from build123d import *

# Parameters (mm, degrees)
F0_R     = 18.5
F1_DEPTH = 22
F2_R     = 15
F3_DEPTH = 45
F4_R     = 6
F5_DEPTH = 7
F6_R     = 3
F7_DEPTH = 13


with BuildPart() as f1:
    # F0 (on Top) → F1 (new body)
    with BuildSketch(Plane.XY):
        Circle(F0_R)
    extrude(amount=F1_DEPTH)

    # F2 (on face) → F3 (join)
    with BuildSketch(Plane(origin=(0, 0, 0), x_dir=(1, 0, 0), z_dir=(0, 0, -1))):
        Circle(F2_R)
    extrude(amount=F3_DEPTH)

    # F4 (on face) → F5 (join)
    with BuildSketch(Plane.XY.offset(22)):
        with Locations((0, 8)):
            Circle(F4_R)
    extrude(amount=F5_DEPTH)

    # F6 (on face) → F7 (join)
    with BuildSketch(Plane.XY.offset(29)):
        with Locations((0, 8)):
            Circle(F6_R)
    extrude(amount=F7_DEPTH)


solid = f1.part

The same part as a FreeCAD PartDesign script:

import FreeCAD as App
import Part
import Sketcher

V = App.Vector
Q = App.Units.Quantity

doc = App.newDocument("Part")
body = doc.addObject("PartDesign::Body", "Body")

sketch1 = doc.addObject("Sketcher::SketchObject", "Sketch")
body.addObject(sketch1)
sketch1.AttachmentSupport = (doc.XY_Plane, [""])
sketch1.MapMode = "FlatFace"
sketch1.addGeometry(Part.Circle(V(0, 0, 0), V(0, 0, 1), 18.5), False)
sketch1.addConstraint([
    Sketcher.Constraint("Coincident", 0, 3, -1, 1),
    Sketcher.Constraint("Diameter", 0, Q("37 mm")),
])
pad1 = doc.addObject("PartDesign::Pad", "Pad")
body.addObject(pad1)
pad1.Profile = sketch1
pad1.Length = 22

sketch2 = doc.addObject("Sketcher::SketchObject", "Sketch001")
body.addObject(sketch2)
sketch2.AttachmentSupport = (doc.XY_Plane, [""])
sketch2.MapMode = "FlatFace"
sketch2.addGeometry(Part.Circle(V(0, 0, 0), V(0, 0, 1), 15), False)
sketch2.addConstraint([
    Sketcher.Constraint("Coincident", 0, 3, -1, 1),
    Sketcher.Constraint("Diameter", 0, Q("30 mm")),
])
pad2 = doc.addObject("PartDesign::Pad", "Pad001")
body.addObject(pad2)
pad2.Profile = sketch2
pad2.Length = 45
pad2.Reversed = True

sketch3 = doc.addObject("Sketcher::SketchObject", "Sketch002")
body.addObject(sketch3)
sketch3.AttachmentSupport = (doc.XY_Plane, [""])
sketch3.MapMode = "FlatFace"
sketch3.AttachmentOffset = App.Placement(V(0, 0, 22), App.Rotation())
sketch3.addGeometry(Part.Circle(V(0, 8, 0), V(0, 0, 1), 6), False)
sketch3.addConstraint([
    Sketcher.Constraint("PointOnObject", 0, 3, -2),
    Sketcher.Constraint("Diameter", 0, Q("12 mm")),
    Sketcher.Constraint("DistanceY", -1, 1, 0, 3, Q("8 mm")),
])
pad3 = doc.addObject("PartDesign::Pad", "Pad002")
body.addObject(pad3)
pad3.Profile = sketch3
pad3.Length = 7

sketch4 = doc.addObject("Sketcher::SketchObject", "Sketch003")
body.addObject(sketch4)
sketch4.AttachmentSupport = (doc.XY_Plane, [""])
sketch4.MapMode = "FlatFace"
sketch4.AttachmentOffset = App.Placement(V(0, 0, 29), App.Rotation())
sketch4.addGeometry(Part.Circle(V(0, 8, 0), V(0, 0, 1), 3), False)
sketch4.addConstraint([
    Sketcher.Constraint("PointOnObject", 0, 3, -2),
    Sketcher.Constraint("Diameter", 0, Q("6 mm")),
    Sketcher.Constraint("DistanceY", -1, 1, 0, 3, Q("8 mm")),
])
pad4 = doc.addObject("PartDesign::Pad", "Pad003")
body.addObject(pad4)
pad4.Profile = sketch4
pad4.Length = 13

doc.recompute()
